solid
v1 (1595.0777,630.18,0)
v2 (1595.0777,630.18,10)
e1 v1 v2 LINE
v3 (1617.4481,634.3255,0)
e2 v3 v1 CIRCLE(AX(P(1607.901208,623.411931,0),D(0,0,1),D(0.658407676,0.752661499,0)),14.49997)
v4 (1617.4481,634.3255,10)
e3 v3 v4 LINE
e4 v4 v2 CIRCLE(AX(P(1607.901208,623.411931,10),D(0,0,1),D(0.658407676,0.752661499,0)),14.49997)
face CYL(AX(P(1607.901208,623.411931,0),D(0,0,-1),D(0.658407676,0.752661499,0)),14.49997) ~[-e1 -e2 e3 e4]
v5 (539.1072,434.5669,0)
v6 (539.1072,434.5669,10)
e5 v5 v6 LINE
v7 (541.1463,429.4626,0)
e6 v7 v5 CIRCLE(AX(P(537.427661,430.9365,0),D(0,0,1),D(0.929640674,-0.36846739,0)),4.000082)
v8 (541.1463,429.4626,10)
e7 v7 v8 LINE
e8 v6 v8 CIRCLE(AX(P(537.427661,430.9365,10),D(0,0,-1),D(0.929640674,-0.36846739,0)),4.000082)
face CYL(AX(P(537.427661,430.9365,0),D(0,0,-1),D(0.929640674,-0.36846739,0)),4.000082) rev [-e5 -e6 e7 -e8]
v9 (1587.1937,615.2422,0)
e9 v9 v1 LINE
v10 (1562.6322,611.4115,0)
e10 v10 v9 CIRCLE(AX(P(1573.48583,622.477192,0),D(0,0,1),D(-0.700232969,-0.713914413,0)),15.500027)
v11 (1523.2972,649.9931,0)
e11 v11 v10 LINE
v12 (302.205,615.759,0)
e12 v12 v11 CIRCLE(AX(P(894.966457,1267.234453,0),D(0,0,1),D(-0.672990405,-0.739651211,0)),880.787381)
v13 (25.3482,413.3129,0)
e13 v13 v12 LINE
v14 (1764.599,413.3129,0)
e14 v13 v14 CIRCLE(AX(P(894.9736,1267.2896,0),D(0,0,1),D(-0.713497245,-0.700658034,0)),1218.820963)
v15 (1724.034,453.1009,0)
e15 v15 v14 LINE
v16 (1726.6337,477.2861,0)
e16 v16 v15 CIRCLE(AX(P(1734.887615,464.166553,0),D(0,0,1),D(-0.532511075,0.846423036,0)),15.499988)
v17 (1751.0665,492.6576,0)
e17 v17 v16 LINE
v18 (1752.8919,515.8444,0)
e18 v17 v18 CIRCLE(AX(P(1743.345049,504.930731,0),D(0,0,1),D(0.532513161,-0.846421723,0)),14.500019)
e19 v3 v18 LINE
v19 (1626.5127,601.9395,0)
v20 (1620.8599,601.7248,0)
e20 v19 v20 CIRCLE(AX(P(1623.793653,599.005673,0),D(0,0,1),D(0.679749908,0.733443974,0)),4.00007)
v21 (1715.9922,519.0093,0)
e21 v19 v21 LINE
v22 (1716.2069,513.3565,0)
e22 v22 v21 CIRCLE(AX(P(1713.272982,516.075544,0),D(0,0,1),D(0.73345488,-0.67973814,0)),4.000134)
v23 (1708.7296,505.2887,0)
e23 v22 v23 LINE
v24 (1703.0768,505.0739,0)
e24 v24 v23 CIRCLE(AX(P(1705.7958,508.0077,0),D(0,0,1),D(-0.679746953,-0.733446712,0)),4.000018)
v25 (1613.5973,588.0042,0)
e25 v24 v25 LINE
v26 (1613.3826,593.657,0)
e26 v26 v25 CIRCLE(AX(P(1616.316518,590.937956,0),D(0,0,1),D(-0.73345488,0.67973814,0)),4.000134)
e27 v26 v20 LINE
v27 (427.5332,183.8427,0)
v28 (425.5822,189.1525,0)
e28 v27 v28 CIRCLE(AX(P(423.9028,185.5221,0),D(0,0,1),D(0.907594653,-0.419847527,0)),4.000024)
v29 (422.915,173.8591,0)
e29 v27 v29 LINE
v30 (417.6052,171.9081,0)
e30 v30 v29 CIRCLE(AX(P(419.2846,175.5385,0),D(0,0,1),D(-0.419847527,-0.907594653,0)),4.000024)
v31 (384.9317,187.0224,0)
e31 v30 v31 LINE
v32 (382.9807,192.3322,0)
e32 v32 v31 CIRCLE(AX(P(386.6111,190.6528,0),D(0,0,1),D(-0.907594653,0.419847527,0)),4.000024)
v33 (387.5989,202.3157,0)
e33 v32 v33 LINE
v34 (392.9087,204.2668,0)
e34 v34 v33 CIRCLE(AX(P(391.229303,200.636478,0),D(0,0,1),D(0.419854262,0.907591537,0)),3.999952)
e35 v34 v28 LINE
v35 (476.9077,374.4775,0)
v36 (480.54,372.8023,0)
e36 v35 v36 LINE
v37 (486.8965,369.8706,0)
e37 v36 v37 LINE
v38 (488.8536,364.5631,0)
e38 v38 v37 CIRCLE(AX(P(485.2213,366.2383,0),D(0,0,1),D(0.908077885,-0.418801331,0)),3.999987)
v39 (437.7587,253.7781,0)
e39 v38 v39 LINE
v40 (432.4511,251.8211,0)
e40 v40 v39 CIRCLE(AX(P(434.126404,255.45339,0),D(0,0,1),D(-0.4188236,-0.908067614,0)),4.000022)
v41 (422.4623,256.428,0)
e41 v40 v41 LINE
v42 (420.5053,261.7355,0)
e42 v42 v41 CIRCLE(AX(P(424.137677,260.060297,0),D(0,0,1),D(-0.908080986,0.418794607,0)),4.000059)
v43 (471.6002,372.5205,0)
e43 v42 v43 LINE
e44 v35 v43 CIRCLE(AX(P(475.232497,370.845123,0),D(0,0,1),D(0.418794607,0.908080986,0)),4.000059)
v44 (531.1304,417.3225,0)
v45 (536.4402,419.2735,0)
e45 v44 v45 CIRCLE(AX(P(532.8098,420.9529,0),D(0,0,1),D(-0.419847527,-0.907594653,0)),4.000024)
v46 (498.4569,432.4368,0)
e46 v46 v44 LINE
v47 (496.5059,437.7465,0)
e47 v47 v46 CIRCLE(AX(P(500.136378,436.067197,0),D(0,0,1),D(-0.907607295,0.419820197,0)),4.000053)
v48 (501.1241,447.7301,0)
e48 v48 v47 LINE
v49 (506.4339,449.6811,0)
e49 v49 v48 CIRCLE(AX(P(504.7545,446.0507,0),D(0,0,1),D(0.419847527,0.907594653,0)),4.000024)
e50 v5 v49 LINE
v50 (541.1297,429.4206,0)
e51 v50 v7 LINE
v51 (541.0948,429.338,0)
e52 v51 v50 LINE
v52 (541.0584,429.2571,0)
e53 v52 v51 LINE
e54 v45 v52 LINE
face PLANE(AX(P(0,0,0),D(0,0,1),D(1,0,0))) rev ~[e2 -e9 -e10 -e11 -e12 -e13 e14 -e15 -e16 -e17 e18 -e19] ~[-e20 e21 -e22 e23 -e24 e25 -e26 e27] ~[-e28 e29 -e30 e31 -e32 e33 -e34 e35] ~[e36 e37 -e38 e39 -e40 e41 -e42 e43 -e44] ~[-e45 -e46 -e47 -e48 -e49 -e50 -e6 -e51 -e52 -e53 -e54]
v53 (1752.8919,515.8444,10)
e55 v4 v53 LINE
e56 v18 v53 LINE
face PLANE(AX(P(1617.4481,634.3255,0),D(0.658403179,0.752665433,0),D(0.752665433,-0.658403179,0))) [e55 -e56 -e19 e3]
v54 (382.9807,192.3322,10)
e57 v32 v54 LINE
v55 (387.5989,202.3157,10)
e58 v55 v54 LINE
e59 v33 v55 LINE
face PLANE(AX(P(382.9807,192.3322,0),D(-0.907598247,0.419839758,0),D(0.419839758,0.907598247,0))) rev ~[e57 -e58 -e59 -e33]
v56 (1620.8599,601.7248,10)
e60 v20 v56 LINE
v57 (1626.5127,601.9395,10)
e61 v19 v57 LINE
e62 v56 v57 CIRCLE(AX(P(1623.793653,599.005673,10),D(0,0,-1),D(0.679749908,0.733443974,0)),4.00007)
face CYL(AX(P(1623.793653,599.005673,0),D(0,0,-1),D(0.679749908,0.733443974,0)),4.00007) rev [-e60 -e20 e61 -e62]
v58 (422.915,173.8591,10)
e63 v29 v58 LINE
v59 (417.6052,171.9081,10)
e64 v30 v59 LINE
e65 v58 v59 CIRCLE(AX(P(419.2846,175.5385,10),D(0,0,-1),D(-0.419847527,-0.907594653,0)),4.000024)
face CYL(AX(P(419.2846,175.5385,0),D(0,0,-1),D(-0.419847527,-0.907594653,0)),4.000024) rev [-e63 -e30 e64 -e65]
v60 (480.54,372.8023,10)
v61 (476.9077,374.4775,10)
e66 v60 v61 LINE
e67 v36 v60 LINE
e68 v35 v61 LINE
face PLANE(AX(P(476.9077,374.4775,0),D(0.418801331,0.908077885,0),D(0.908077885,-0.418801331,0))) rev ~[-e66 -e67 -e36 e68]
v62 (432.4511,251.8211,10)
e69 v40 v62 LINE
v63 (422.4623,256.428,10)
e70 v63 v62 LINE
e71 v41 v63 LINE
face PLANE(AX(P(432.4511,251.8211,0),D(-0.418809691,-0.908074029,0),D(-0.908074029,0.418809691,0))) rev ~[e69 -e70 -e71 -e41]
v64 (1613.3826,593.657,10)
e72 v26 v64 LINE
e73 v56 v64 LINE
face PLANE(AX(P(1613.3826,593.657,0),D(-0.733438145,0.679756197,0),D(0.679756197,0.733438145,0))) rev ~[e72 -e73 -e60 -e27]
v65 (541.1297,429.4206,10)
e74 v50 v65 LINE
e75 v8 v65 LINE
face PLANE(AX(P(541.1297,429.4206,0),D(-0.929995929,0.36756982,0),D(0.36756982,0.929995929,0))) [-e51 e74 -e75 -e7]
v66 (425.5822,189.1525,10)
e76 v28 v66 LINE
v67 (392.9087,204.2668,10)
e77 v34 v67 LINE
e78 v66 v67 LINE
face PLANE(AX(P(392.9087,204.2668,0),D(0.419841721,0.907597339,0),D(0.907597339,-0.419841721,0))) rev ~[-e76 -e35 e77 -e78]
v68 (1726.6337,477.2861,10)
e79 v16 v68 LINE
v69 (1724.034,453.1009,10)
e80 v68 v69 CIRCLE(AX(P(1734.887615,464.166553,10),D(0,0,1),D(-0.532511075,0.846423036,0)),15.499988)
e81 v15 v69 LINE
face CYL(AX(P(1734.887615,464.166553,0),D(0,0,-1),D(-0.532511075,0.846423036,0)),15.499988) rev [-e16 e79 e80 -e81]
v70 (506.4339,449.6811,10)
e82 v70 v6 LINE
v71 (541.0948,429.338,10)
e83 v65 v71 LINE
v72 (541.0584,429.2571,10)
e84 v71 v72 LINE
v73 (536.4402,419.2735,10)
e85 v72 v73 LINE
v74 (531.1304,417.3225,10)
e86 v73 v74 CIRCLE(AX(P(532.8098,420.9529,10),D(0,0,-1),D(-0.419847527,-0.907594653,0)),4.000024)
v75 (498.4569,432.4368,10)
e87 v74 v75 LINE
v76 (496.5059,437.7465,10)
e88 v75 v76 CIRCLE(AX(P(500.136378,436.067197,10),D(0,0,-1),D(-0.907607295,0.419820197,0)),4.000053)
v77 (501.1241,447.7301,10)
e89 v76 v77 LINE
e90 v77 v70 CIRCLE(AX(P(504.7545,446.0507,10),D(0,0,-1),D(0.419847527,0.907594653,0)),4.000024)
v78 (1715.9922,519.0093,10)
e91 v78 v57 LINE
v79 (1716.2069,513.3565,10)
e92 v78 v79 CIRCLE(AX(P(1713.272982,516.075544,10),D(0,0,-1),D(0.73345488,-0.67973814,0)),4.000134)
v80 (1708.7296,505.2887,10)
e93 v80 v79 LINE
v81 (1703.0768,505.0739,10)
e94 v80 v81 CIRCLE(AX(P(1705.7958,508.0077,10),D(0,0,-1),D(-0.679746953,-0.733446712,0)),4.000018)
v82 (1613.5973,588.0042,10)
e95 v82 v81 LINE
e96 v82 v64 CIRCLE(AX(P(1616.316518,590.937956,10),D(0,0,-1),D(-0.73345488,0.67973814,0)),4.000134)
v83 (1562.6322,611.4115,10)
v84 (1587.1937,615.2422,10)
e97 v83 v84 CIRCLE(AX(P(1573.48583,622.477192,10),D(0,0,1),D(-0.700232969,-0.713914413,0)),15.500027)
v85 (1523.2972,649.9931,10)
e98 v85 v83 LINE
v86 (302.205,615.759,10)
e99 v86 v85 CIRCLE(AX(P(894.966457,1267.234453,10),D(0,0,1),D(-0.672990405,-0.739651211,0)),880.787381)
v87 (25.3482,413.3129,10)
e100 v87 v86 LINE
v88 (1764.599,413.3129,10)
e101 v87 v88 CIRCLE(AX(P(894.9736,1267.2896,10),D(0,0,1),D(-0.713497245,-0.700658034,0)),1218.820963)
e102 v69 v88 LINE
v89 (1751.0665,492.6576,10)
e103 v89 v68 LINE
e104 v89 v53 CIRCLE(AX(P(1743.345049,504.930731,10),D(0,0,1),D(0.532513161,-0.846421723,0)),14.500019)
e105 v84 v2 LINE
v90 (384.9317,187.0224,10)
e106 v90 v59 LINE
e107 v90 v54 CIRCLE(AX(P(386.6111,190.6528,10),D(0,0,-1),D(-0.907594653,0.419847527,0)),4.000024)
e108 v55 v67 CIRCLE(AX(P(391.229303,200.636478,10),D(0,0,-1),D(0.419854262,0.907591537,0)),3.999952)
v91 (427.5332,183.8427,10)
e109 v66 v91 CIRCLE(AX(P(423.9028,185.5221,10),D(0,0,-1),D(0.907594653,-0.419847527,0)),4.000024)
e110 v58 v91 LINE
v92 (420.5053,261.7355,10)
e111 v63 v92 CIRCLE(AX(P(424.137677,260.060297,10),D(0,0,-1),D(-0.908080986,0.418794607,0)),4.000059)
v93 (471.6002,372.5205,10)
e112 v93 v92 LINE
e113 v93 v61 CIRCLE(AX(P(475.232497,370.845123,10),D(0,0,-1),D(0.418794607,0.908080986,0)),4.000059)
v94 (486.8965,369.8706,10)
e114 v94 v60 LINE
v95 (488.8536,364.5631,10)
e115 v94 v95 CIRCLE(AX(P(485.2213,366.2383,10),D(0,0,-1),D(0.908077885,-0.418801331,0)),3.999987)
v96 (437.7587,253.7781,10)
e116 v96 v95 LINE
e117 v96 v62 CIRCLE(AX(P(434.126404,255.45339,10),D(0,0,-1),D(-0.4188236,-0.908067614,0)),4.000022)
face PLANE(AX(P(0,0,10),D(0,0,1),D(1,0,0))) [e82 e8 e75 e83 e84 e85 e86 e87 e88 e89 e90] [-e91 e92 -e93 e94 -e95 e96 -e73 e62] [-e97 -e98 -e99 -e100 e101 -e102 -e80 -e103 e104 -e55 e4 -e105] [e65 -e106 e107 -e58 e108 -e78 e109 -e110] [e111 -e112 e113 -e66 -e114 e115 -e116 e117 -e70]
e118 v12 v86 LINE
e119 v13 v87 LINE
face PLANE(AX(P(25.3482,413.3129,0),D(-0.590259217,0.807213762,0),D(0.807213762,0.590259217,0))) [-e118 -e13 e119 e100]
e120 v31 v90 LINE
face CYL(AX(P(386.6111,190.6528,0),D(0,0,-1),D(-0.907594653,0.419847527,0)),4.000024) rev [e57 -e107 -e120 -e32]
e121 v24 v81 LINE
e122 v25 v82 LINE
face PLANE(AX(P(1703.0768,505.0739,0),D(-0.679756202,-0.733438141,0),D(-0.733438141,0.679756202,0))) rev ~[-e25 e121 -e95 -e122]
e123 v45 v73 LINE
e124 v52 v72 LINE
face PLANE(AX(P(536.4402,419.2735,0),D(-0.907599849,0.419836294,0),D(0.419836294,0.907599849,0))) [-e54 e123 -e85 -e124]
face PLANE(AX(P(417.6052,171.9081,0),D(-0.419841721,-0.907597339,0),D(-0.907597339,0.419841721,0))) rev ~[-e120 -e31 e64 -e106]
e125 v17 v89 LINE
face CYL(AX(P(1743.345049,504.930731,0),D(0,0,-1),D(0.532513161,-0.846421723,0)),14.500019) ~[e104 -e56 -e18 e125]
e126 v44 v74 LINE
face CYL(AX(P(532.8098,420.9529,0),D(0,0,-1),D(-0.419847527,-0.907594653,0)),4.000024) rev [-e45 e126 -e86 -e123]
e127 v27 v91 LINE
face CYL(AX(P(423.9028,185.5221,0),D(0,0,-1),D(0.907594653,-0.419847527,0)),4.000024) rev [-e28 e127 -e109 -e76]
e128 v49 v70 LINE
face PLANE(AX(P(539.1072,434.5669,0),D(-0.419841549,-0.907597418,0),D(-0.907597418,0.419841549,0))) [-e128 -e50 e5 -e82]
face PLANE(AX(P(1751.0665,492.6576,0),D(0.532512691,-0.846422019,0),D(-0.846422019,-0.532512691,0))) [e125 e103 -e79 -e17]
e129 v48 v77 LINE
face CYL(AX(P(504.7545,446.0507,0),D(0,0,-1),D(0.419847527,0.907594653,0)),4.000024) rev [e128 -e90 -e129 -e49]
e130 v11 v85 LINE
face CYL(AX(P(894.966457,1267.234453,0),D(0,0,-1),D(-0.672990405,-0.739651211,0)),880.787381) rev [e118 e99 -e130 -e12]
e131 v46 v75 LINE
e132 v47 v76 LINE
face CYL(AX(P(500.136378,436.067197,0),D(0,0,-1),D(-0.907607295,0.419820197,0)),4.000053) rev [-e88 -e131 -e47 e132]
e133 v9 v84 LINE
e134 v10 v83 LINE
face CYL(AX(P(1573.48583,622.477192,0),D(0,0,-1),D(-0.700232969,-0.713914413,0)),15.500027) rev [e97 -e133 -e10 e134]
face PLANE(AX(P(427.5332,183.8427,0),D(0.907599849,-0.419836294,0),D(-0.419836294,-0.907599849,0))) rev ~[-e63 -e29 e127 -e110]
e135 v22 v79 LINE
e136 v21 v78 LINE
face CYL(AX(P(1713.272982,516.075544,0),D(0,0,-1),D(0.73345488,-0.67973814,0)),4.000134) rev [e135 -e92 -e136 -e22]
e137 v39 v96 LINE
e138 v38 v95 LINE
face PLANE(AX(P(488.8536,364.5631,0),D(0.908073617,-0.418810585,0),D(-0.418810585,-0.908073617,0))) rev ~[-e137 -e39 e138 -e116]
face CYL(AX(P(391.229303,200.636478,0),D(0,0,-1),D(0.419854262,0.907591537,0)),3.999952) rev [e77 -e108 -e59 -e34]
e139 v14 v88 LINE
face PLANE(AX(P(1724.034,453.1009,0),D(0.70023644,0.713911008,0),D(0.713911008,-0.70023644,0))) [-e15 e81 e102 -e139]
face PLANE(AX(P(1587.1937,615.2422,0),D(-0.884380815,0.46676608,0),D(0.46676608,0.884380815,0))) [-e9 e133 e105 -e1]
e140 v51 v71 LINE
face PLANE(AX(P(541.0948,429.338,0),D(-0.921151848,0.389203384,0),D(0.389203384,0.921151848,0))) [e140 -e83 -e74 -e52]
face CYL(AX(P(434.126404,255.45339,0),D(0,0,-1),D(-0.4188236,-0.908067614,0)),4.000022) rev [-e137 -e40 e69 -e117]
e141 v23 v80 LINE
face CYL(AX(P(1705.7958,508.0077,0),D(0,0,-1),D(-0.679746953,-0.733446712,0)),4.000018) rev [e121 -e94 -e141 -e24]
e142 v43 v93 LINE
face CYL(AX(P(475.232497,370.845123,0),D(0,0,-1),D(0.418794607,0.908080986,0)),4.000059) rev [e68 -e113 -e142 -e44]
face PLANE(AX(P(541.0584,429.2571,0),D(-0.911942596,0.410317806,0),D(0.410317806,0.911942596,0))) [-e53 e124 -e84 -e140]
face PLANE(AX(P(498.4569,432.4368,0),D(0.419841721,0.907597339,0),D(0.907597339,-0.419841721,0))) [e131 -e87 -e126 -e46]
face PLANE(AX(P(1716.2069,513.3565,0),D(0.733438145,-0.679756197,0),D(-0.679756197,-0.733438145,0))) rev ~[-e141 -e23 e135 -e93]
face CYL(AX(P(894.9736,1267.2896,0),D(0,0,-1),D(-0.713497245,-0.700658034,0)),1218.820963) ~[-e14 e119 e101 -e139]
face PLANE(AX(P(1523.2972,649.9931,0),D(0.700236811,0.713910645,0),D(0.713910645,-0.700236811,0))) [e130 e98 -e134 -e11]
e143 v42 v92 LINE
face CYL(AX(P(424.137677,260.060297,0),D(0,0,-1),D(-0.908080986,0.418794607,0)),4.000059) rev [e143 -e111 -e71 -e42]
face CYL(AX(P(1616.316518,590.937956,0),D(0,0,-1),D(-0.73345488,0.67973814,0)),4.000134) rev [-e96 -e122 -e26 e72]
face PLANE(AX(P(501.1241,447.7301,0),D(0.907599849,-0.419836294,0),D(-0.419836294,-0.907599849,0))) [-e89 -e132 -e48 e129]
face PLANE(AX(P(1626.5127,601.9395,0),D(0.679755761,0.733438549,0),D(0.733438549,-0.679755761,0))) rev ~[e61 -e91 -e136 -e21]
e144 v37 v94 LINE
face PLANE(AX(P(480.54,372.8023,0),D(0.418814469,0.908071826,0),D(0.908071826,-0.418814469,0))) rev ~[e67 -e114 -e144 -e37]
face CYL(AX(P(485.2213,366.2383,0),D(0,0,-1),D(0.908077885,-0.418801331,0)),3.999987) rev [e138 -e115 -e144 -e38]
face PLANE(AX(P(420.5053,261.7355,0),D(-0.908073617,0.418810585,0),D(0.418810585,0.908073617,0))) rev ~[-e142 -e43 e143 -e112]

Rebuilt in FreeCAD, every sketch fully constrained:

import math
import FreeCAD as App
import Part
import Sketcher
Q = App.Units.Quantity

doc = App.newDocument("Part")
body = doc.addObject("PartDesign::Body", "Body")

# Sketch on XY plane
sketch1 = body.newObject("Sketcher::SketchObject", "Sketch")
sketch1.AttachmentSupport = (doc.getObject("XY_Plane"), [""])
sketch1.MapMode = "FlatFace"
sketch1.addGeometry([
    Part.LineSegment(App.Vector(1563, 611, 0), App.Vector(1523, 650, 0)),  # 0
    Part.ArcOfCircle(Part.Circle(App.Vector(895, 1267, 0), App.Vector(0, 0, 1), 881), math.radians(-132), math.radians(-44)),  # 1
    Part.LineSegment(App.Vector(302, 616, 0), App.Vector(25, 413, 0)),  # 2
    Part.ArcOfCircle(Part.Circle(App.Vector(895, 1267, 0), App.Vector(0, 0, 1), 1219), math.radians(-136), math.radians(-44)),  # 3
    Part.LineSegment(App.Vector(1765, 413, 0), App.Vector(1724, 453, 0)),  # 4
    Part.ArcOfCircle(Part.Circle(App.Vector(1735, 464, 0), App.Vector(0, 0, 1), 16), math.radians(122), math.radians(226)),  # 5
    Part.LineSegment(App.Vector(1727, 477, 0), App.Vector(1751, 493, 0)),  # 6
    Part.ArcOfCircle(Part.Circle(App.Vector(1743, 505, 0), App.Vector(0, 0, 1), 14), math.radians(-58), math.radians(49)),  # 7
    Part.LineSegment(App.Vector(1753, 516, 0), App.Vector(1617, 634, 0)),  # 8
    Part.ArcOfCircle(Part.Circle(App.Vector(1608, 623, 0), App.Vector(0, 0, 1), 14), math.radians(49), math.radians(152)),  # 9
    Part.LineSegment(App.Vector(1595, 630, 0), App.Vector(1587, 615, 0)),  # 10
    Part.ArcOfCircle(Part.Circle(App.Vector(1573, 622, 0), App.Vector(0, 0, 1), 15), math.radians(-134), math.radians(-28)),  # 11
], False)
sketch1.addConstraint([
    Sketcher.Constraint("Coincident", 0, 2, 1, 2),
    Sketcher.Constraint("Coincident", 1, 1, 2, 1),
    Sketcher.Constraint("Coincident", 2, 2, 3, 1),
    Sketcher.Constraint("Coincident", 3, 2, 4, 1),
    Sketcher.Constraint("Tangent", 4, 2, 5, 2),
    Sketcher.Constraint("Tangent", 5, 1, 6, 1),
    Sketcher.Constraint("Tangent", 6, 2, 7, 1),
    Sketcher.Constraint("Tangent", 7, 2, 8, 1),
    Sketcher.Constraint("Tangent", 8, 2, 9, 1),
    Sketcher.Constraint("Tangent", 9, 2, 10, 1),
    Sketcher.Constraint("Tangent", 10, 2, 11, 2),
    Sketcher.Constraint("Tangent", 11, 1, 0, 1),
    Sketcher.Constraint("Equal", 7, 9),
    Sketcher.Constraint("Equal", 5, 11),
    Sketcher.Constraint("Parallel", 0, 4),
    Sketcher.Constraint("Radius", 5, Q("15.5 mm")),
    Sketcher.Constraint("Radius", 7, Q("14.5 mm")),
    Sketcher.Constraint("Radius", 3, Q("1218.821 mm")),
    Sketcher.Constraint("Radius", 1, Q("880.7872 mm")),
    Sketcher.Constraint("DistanceY", -1, 1, 9, 2, Q("630.18 mm")),
    Sketcher.Constraint("Distance", 0, Q("55.098 mm")),
    Sketcher.Constraint("Distance", 6, Q("28.866 mm")),
    Sketcher.Constraint("DistanceX", -1, 1, 7, 3, Q("1743.345 mm")),
    Sketcher.Constraint("DistanceY", -1, 1, 9, 3, Q("623.412 mm")),
    Sketcher.Constraint("DistanceY", -1, 1, 11, 3, Q("622.477 mm")),
    Sketcher.Constraint("DistanceY", -1, 1, 0, 2, Q("649.993 mm")),
    Sketcher.Constraint("DistanceY", -1, 1, 2, 2, Q("413.313 mm")),
    Sketcher.Constraint("DistanceX", -1, 1, 4, 2, Q("1724.034 mm")),
    Sketcher.Constraint("DistanceY", -1, 1, 4, 2, Q("453.101 mm")),
    Sketcher.Constraint("DistanceX", -1, 1, 8, 2, Q("1617.448 mm")),
    Sketcher.Constraint("DistanceX", 3, 3, 5, 3, Q("839.914 mm")),
    Sketcher.Constraint("DistanceY", 5, 3, 3, 3, Q("803.123 mm")),
    Sketcher.Constraint("Distance", 2, Q("342.9783 mm")),
    Sketcher.Constraint("DistanceX", -1, 1, 1, 3, Q("894.9664 mm")),
])
pad1 = body.newObject("PartDesign::Pad", "Pad")
pad1.Profile = sketch1
pad1.Length = 10

# Sketch on XY plane
sketch2 = body.newObject("Sketcher::SketchObject", "Sketch001")
sketch2.AttachmentSupport = (doc.getObject("XY_Plane"), [""])
sketch2.MapMode = "FlatFace"
sketch2.addGeometry([
    Part.LineSegment(App.Vector(384.932, 187.022, 0), App.Vector(417.605, 171.908, 0)),  # 0
    Part.ArcOfCircle(Part.Circle(App.Vector(419.285, 175.538, 0), App.Vector(0, 0, 1), 4), math.radians(-115), math.radians(-25)),  # 1
    Part.LineSegment(App.Vector(422.915, 173.859, 0), App.Vector(427.533, 183.843, 0)),  # 2
    Part.ArcOfCircle(Part.Circle(App.Vector(423.903, 185.522, 0), App.Vector(0, 0, 1), 4), math.radians(-25), math.radians(65)),  # 3
    Part.LineSegment(App.Vector(425.582, 189.153, 0), App.Vector(392.909, 204.267, 0)),  # 4
    Part.ArcOfCircle(Part.Circle(App.Vector(391.229, 200.636, 0), App.Vector(0, 0, 1), 4), math.radians(65), math.radians(155)),  # 5
    Part.LineSegment(App.Vector(387.599, 202.316, 0), App.Vector(382.981, 192.332, 0)),  # 6
    Part.ArcOfCircle(Part.Circle(App.Vector(386.611, 190.653, 0), App.Vector(0, 0, 1), 4), math.radians(155), math.radians(245)),  # 7
    Part.LineSegment(App.Vector(437.759, 253.778, 0), App.Vector(488.854, 364.563, 0)),  # 8
    Part.ArcOfCircle(Part.Circle(App.Vector(485.221, 366.238, 0), App.Vector(0, 0, 1), 4), math.radians(-25), math.radians(65)),  # 9
    Part.LineSegment(App.Vector(486.897, 369.871, 0), App.Vector(480.54, 372.802, 0)),  # 10
    Part.LineSegment(App.Vector(480.54, 372.802, 0), App.Vector(476.908, 374.478, 0)),  # 11
    Part.ArcOfCircle(Part.Circle(App.Vector(475.233, 370.845, 0), App.Vector(0, 0, 1), 4), math.radians(65), math.radians(155)),  # 12
    Part.LineSegment(App.Vector(471.6, 372.521, 0), App.Vector(420.505, 261.736, 0)),  # 13
    Part.ArcOfCircle(Part.Circle(App.Vector(424.138, 260.06, 0), App.Vector(0, 0, 1), 4), math.radians(155), math.radians(245)),  # 14
    Part.LineSegment(App.Vector(422.462, 256.428, 0), App.Vector(432.451, 251.821, 0)),  # 15
    Part.ArcOfCircle(Part.Circle(App.Vector(434.126, 255.453, 0), App.Vector(0, 0, 1), 4), math.radians(-115), math.radians(-25)),  # 16
    Part.LineSegment(App.Vector(1613.597, 588.004, 0), App.Vector(1703.077, 505.074, 0)),  # 17
    Part.ArcOfCircle(Part.Circle(App.Vector(1705.796, 508.008, 0), App.Vector(0, 0, 1), 4), math.radians(-133), math.radians(-43)),  # 18
    Part.LineSegment(App.Vector(1708.73, 505.289, 0), App.Vector(1716.207, 513.356, 0)),  # 19
    Part.ArcOfCircle(Part.Circle(App.Vector(1713.273, 516.076, 0), App.Vector(0, 0, 1), 4), math.radians(-43), math.radians(47)),  # 20
    Part.LineSegment(App.Vector(1715.992, 519.009, 0), App.Vector(1626.513, 601.939, 0)),  # 21
    Part.ArcOfCircle(Part.Circle(App.Vector(1623.794, 599.006, 0), App.Vector(0, 0, 1), 4), math.radians(47), math.radians(137)),  # 22
    Part.LineSegment(App.Vector(1620.86, 601.725, 0), App.Vector(1613.383, 593.657, 0)),  # 23
    Part.ArcOfCircle(Part.Circle(App.Vector(1616.316, 590.938, 0), App.Vector(0, 0, 1), 4), math.radians(137), math.radians(227)),  # 24
    Part.LineSegment(App.Vector(541.095, 429.338, 0), App.Vector(541.13, 429.421, 0)),  # 25
    Part.LineSegment(App.Vector(541.13, 429.421, 0), App.Vector(541.146, 429.463, 0)),  # 26
    Part.ArcOfCircle(Part.Circle(App.Vector(537.428, 430.937, 0), App.Vector(0, 0, 1), 4), math.radians(-22), math.radians(65)),  # 27
    Part.LineSegment(App.Vector(539.107, 434.567, 0), App.Vector(506.434, 449.681, 0)),  # 28
    Part.ArcOfCircle(Part.Circle(App.Vector(504.755, 446.051, 0), App.Vector(0, 0, 1), 4), math.radians(65), math.radians(155)),  # 29
    Part.LineSegment(App.Vector(501.124, 447.73, 0), App.Vector(496.506, 437.747, 0)),  # 30
    Part.ArcOfCircle(Part.Circle(App.Vector(500.136, 436.067, 0), App.Vector(0, 0, 1), 4), math.radians(155), math.radians(245)),  # 31
    Part.LineSegment(App.Vector(498.457, 432.437, 0), App.Vector(531.13, 417.322, 0)),  # 32
    Part.ArcOfCircle(Part.Circle(App.Vector(532.81, 420.953, 0), App.Vector(0, 0, 1), 4), math.radians(-115), math.radians(-25)),  # 33
    Part.LineSegment(App.Vector(536.44, 419.274, 0), App.Vector(541.058, 429.257, 0)),  # 34
    Part.LineSegment(App.Vector(541.058, 429.257, 0), App.Vector(541.095, 429.338, 0)),  # 35
], False)
sketch2.addConstraint([
    Sketcher.Constraint("Tangent", 0, 2, 1, 1),
    Sketcher.Constraint("Tangent", 1, 2, 2, 1),
    Sketcher.Constraint("Tangent", 2, 2, 3, 1),
    Sketcher.Constraint("Tangent", 3, 2, 4, 1),
    Sketcher.Constraint("Tangent", 4, 2, 5, 1),
    Sketcher.Constraint("Tangent", 5, 2, 6, 1),
    Sketcher.Constraint("Tangent", 6, 2, 7, 1),
    Sketcher.Constraint("Tangent", 7, 2, 0, 1),
    Sketcher.Constraint("Tangent", 8, 2, 9, 1),
    Sketcher.Constraint("Tangent", 9, 2, 10, 1),
    Sketcher.Constraint("Coincident", 10, 2, 11, 1),
    Sketcher.Constraint("Tangent", 11, 2, 12, 1),
    Sketcher.Constraint("Tangent", 12, 2, 13, 1),
    Sketcher.Constraint("Tangent", 13, 2, 14, 1),
    Sketcher.Constraint("Tangent", 14, 2, 15, 1),
    Sketcher.Constraint("Tangent", 15, 2, 16, 1),
    Sketcher.Constraint("Tangent", 16, 2, 8, 1),
    Sketcher.Constraint("Tangent", 17, 2, 18, 1),
    Sketcher.Constraint("Tangent", 18, 2, 19, 1),
    Sketcher.Constraint("Tangent", 19, 2, 20, 1),
    Sketcher.Constraint("Tangent", 20, 2, 21, 1),
    Sketcher.Constraint("Tangent", 21, 2, 22, 1),
    Sketcher.Constraint("Tangent", 22, 2, 23, 1),
    Sketcher.Constraint("Tangent", 23, 2, 24, 1),
    Sketcher.Constraint("Tangent", 24, 2, 17, 1),
    Sketcher.Constraint("Coincident", 25, 2, 26, 1),
    Sketcher.Constraint("Coincident", 26, 2, 27, 1),
    Sketcher.Constraint("Tangent", 27, 2, 28, 1),
    Sketcher.Constraint("Tangent", 28, 2, 29, 1),
    Sketcher.Constraint("Tangent", 29, 2, 30, 1),
    Sketcher.Constraint("Tangent", 30, 2, 31, 1),
    Sketcher.Constraint("Tangent", 31, 2, 32, 1),
    Sketcher.Constraint("Tangent", 32, 2, 33, 1),
    Sketcher.Constraint("Tangent", 33, 2, 34, 1),
    Sketcher.Constraint("Coincident", 34, 2, 35, 1),
    Sketcher.Constraint("Coincident", 35, 2, 25, 1),
    Sketcher.Constraint("Equal", 1, 3),
    Sketcher.Constraint("Equal", 3, 5),
    Sketcher.Constraint("Equal", 5, 7),
    Sketcher.Constraint("Equal", 7, 9),
    Sketcher.Constraint("Equal", 9, 12),
    Sketcher.Constraint("Equal", 12, 14),
    Sketcher.Constraint("Equal", 14, 16),
    Sketcher.Constraint("Equal", 16, 18),
    Sketcher.Constraint("Equal", 18, 20),
    Sketcher.Constraint("Equal", 20, 22),
    Sketcher.Constraint("Equal", 22, 24),
    Sketcher.Constraint("Equal", 24, 27),
    Sketcher.Constraint("Equal", 27, 29),
    Sketcher.Constraint("Equal", 29, 31),
    Sketcher.Constraint("Equal", 31, 33),
    Sketcher.Constraint("Perpendicular", 0, 2),
    Sketcher.Constraint("Perpendicular", 2, 4),
    Sketcher.Constraint("Perpendicular", 4, 6),
    Sketcher.Constraint("Perpendicular", 8, 10),
    Sketcher.Constraint("Parallel", 10, 11),
    Sketcher.Constraint("Perpendicular", 11, 13),
    Sketcher.Constraint("Perpendicular", 13, 15),
    Sketcher.Constraint("Perpendicular", 17, 19),
    Sketcher.Constraint("Perpendicular", 19, 21),
    Sketcher.Constraint("Perpendicular", 21, 23),
    Sketcher.Constraint("Perpendicular", 6, 28),
    Sketcher.Constraint("Perpendicular", 28, 30),
    Sketcher.Constraint("Perpendicular", 30, 32),
    Sketcher.Constraint("Perpendicular", 32, 34),
    Sketcher.Constraint("Equal", 6, 15),
    Sketcher.Constraint("Equal", 13, 17),
    Sketcher.Constraint("Equal", 15, 19),
    Sketcher.Constraint("Equal", 23, 30),
    Sketcher.Constraint("Equal", 4, 32),
    Sketcher.Constraint("Equal", 30, 34),
    Sketcher.Constraint("Radius", 1, Q("4 mm")),
    Sketcher.Constraint("Distance", 0, Q("36 mm")),
    Sketcher.Constraint("Distance", 2, Q("11 mm")),
    Sketcher.Constraint("Distance", 8, Q("122 mm")),
    Sketcher.Constraint("Distance", 10, Q("7 mm")),
    Sketcher.Constraint("Angle", 8, Q("65.2405 deg")),
    Sketcher.Constraint("DistanceX", -1, 1, 10, 2, Q("480.54 mm")),
    Sketcher.Constraint("DistanceX", -1, 1, 22, 2, Q("1620.86 mm")),
    Sketcher.Constraint("DistanceY", -1, 1, 29, 2, Q("447.73 mm")),
    Sketcher.Constraint("DistanceX", 17, 2, 19, 2, Q("13.13 mm")),
    Sketcher.Constraint("DistanceX", 33, 3, 25, 2, Q("8.32 mm")),
    Sketcher.Constraint("DistanceY", 25, 2, 29, 3, Q("16.63 mm")),
    Sketcher.Constraint("DistanceY", 9, 2, 25, 2, Q("59.55 mm")),
    Sketcher.Constraint("DistanceX", 31, 3, 26, 2, Q("41.01 mm")),
    Sketcher.Constraint("DistanceY", 32, 2, 26, 2, Q("12.14 mm")),
    Sketcher.Constraint("DistanceY", -1, 1, 3, 3, Q("185.522 mm")),
    Sketcher.Constraint("DistanceX", -1, 1, 7, 3, Q("386.611 mm")),
    Sketcher.Constraint("DistanceY", -1, 1, 24, 3, Q("590.938 mm")),
    Sketcher.Constraint("DistanceY", -1, 1, 33, 3, Q("420.953 mm")),
    Sketcher.Constraint("DistanceX", -1, 1, 28, 2, Q("506.434 mm")),
    Sketcher.Constraint("DistanceY", -1, 1, 35, 2, Q("429.338 mm")),
    Sketcher.Constraint("DistanceX", 35, 2, 25, 2, Q("0.035 mm")),
])
pocket1 = body.newObject("PartDesign::Pocket", "Pocket")
pocket1.Profile = sketch2
pocket1.Length = 18
pocket1.Reversed = True

doc.recompute()
